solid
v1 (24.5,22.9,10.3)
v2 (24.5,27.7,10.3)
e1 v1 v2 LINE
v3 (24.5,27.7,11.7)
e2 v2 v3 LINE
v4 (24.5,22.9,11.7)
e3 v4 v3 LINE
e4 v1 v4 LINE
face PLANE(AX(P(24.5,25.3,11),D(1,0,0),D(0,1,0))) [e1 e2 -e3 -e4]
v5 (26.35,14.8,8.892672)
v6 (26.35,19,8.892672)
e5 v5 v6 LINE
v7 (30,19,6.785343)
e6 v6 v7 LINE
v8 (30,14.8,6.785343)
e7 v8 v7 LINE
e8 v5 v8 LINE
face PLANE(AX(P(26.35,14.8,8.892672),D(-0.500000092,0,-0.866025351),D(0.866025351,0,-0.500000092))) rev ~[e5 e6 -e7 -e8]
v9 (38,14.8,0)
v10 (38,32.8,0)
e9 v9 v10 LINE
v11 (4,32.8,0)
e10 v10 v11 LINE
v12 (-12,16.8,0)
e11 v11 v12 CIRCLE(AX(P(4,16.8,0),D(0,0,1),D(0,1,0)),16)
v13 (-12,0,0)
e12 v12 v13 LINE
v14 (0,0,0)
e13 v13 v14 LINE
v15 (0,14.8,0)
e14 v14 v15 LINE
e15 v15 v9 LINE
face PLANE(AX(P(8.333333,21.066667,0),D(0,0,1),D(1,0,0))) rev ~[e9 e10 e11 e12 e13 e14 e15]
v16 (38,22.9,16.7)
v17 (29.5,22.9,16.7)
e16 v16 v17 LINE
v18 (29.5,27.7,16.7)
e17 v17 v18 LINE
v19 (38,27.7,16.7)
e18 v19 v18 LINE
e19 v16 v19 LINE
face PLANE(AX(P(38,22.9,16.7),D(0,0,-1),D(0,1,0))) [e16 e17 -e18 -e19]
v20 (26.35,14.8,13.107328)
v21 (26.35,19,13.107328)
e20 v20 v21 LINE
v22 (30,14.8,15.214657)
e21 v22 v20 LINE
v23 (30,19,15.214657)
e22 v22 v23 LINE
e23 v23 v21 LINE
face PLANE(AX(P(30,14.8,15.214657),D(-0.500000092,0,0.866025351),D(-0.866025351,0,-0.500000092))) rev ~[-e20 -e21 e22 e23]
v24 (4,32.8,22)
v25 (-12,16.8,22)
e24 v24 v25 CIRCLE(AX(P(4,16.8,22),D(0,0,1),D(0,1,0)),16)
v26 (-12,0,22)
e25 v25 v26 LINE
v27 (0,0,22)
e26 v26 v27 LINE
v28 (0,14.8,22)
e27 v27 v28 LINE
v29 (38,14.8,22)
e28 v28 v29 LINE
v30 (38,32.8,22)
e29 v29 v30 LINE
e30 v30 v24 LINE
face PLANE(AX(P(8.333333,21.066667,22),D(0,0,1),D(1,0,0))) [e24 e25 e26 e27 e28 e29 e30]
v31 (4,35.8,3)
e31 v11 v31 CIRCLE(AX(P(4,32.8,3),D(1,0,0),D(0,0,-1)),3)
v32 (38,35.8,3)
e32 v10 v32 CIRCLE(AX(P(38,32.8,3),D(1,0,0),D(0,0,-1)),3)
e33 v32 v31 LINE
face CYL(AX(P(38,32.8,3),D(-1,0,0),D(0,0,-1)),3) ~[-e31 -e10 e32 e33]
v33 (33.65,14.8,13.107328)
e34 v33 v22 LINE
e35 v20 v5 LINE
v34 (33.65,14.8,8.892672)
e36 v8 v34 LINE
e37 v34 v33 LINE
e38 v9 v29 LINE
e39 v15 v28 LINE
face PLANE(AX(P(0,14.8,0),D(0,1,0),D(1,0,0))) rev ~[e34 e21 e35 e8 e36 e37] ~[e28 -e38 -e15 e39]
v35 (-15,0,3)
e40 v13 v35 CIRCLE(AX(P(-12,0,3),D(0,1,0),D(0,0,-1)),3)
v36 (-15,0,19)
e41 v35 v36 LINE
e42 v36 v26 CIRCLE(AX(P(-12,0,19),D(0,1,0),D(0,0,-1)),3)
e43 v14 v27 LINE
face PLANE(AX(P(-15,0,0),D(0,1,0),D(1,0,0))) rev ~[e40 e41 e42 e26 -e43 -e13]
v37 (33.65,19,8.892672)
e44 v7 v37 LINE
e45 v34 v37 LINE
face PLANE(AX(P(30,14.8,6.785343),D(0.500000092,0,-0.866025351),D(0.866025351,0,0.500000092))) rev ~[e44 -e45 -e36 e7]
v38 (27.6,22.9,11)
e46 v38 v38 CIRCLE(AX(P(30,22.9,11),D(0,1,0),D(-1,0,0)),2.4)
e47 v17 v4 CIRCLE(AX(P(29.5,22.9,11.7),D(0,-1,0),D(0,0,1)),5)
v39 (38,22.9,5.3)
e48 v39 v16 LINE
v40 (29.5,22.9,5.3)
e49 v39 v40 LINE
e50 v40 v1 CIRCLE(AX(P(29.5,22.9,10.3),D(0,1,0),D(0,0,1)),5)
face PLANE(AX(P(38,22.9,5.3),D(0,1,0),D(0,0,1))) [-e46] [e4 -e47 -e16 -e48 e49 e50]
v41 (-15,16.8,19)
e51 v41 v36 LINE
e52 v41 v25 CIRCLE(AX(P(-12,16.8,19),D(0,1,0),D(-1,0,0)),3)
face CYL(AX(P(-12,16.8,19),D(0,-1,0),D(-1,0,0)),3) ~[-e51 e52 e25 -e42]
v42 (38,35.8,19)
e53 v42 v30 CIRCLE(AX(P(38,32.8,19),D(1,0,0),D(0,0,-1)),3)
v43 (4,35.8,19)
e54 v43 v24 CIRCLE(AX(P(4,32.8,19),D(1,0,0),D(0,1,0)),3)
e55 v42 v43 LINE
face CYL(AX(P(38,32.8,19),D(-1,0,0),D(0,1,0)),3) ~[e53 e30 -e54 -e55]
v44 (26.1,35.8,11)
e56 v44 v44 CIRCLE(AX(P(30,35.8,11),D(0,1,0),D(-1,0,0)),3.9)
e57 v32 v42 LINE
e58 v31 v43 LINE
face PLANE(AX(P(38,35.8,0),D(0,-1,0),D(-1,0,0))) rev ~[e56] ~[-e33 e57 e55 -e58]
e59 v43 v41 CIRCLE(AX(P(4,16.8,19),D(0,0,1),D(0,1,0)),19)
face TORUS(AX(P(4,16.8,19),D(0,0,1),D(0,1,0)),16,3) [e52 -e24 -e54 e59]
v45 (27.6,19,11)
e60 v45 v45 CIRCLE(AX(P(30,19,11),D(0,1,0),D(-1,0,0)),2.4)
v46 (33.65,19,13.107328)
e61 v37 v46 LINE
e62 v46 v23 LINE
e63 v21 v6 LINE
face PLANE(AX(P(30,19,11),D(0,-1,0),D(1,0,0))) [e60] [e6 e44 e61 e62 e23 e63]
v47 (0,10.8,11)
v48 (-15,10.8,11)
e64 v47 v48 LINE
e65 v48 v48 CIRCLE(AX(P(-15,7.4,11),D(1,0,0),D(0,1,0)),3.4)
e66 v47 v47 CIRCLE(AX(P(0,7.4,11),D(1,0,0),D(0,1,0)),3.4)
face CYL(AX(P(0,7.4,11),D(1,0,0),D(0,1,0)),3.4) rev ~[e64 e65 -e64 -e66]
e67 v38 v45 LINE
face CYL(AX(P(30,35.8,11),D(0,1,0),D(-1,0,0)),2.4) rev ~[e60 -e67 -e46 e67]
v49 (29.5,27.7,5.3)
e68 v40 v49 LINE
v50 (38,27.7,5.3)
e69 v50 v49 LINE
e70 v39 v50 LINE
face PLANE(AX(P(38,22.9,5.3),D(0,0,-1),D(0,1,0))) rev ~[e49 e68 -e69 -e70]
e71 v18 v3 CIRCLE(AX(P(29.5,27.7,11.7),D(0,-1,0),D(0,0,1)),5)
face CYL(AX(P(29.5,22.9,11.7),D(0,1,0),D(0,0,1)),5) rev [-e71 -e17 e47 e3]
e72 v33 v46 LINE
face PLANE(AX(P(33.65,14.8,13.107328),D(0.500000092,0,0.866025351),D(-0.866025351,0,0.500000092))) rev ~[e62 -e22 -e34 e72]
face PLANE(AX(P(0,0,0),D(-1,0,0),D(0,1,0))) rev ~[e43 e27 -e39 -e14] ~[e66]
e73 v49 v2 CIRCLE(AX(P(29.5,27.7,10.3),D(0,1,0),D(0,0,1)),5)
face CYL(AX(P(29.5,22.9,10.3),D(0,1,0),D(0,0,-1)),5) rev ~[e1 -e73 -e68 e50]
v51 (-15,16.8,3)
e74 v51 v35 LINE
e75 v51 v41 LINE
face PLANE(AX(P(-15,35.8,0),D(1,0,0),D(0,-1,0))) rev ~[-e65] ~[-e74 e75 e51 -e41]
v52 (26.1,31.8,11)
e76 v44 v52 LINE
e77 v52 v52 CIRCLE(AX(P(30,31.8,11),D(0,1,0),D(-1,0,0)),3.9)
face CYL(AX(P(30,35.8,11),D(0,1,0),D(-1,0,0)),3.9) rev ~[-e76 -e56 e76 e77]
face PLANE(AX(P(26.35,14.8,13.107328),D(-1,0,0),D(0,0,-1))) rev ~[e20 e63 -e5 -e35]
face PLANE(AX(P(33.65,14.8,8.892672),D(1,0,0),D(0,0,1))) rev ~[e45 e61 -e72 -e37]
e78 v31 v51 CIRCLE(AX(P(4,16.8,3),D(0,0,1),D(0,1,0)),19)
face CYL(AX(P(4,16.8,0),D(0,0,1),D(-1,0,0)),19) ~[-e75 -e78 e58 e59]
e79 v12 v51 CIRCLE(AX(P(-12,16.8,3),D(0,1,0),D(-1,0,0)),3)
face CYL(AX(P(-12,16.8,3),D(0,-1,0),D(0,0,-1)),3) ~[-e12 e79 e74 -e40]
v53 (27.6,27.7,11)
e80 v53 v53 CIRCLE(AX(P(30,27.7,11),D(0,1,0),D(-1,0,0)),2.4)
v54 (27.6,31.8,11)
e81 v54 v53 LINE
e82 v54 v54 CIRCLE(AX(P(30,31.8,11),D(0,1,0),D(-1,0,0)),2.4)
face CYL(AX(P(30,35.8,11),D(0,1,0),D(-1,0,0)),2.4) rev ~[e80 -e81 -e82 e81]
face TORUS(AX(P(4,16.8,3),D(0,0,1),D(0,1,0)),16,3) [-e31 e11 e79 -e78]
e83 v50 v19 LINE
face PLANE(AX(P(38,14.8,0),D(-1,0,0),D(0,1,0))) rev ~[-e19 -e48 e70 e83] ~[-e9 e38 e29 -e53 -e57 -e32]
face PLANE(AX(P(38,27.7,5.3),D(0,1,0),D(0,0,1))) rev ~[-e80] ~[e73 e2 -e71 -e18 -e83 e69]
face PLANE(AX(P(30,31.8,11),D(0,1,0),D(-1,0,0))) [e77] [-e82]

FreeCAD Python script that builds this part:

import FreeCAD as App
import Part
import Sketcher
from FreeCAD import Vector
Q = App.Units.Quantity


def edges_at(feature, points):
    """Names of the edges that pass closest to the given points."""
    edges = feature.Shape.Edges
    near = lambda p: min(range(len(edges)), key=lambda i: edges[i].distToShape(Part.Vertex(*p))[0])
    return sorted({f"Edge{near(p) + 1}" for p in points})

doc = App.newDocument("Part")
params = doc.addObject("Spreadsheet::Sheet", "Params")
for row, (alias, value) in enumerate([
    ("sketch1_width", "38 mm"),
    ("sketch1_width2", "53 mm"),
    ("sketch1_height", "21 mm"),
    ("sketch1_height2", "14.8 mm"),
    ("pad1_length", "22 mm"),
    ("sketch2_diameter", "6.8 mm"),
    ("sketch3_width", "4.8 mm"),
    ("sketch3_height", "11.4 mm"),
    ("pocket2_length", "13.5 mm"),
    ("sketch4_diameter", "4.8 mm"),
    ("sketch5_diameter", "7.8 mm"),
    ("pocket4_length", "4 mm"),
    ("pocket5_length", "4.2 mm"),
    ("fillet_radius", "19 mm"),
    ("fillet2_radius", "3 mm"),
    ("fillet3_radius", "5 mm"),
], start=1):
    params.set(f"A{row}", alias)
    params.set(f"B{row}", "=" + value)
    params.setAlias(f"B{row}", alias)

body = doc.addObject("PartDesign::Body", "Body")

# Sketch on XY plane
sketch1 = body.newObject("Sketcher::SketchObject", "Sketch")
sketch1.AttachmentSupport = (doc.getObject("XY_Plane"), [""])
sketch1.MapMode = "FlatFace"
sketch1.addGeometry([
    Part.LineSegment(Vector(0, 0, 0), Vector(0, 15, 0)),  # 0
    Part.LineSegment(Vector(0, 15, 0), Vector(38, 15, 0)),  # 1
    Part.LineSegment(Vector(38, 15, 0), Vector(38, 36, 0)),  # 2
    Part.LineSegment(Vector(38, 36, 0), Vector(-15, 36, 0)),  # 3
    Part.LineSegment(Vector(-15, 36, 0), Vector(-15, 0, 0)),  # 4
    Part.LineSegment(Vector(-15, 0, 0), Vector(0, 0, 0)),  # 5
], False)
sketch1.addConstraint([
    Sketcher.Constraint("Coincident", 0, 2, 1, 1),
    Sketcher.Constraint("Coincident", 1, 2, 2, 1),
    Sketcher.Constraint("Coincident", 2, 2, 3, 1),
    Sketcher.Constraint("Coincident", 3, 2, 4, 1),
    Sketcher.Constraint("Coincident", 4, 2, 5, 1),
    Sketcher.Constraint("Coincident", 5, 2, 0, 1),
    Sketcher.Constraint("Vertical", 0),
    Sketcher.Constraint("Horizontal", 1),
    Sketcher.Constraint("Vertical", 2),
    Sketcher.Constraint("Horizontal", 3),
    Sketcher.Constraint("Vertical", 4),
    Sketcher.Constraint("Horizontal", 5),
    Sketcher.Constraint("Coincident", 5, 2, -1, 1),
    Sketcher.Constraint("DistanceX", 1, 1, 1, 2, 38.0),
    Sketcher.Constraint("DistanceX", 3, 2, 3, 1, 53.0),
    Sketcher.Constraint("DistanceY", 2, 1, 2, 2, 21.0),
    Sketcher.Constraint("DistanceY", 0, 1, 0, 2, 14.8),
])
sketch1.setExpression("Constraints[13]", "Params.sketch1_width")
sketch1.setExpression("Constraints[14]", "Params.sketch1_width2")
sketch1.setExpression("Constraints[15]", "Params.sketch1_height")
sketch1.setExpression("Constraints[16]", "Params.sketch1_height2")
pad1 = body.newObject("PartDesign::Pad", "Pad")
pad1.Profile = sketch1
pad1.setExpression("Length", "Params.pad1_length")

# Sketch on YZ plane
sketch2 = body.newObject("Sketcher::SketchObject", "Sketch001")
sketch2.AttachmentSupport = (doc.getObject("YZ_Plane"), [""])
sketch2.MapMode = "FlatFace"
sketch2.addGeometry(Part.Circle(Vector(7.4, 11, 0), Vector(0, 0, 1), 3.4), False)
sketch2.addConstraint([
    Sketcher.Constraint("Diameter", 0, 6.8),
    Sketcher.Constraint("DistanceY", -1, 1, 0, 3, 11.0),
    Sketcher.Constraint("DistanceX", -1, 1, 0, 3, 7.4),
])
sketch2.setExpression("Constraints[0]", "Params.sketch2_diameter")
pocket1 = body.newObject("PartDesign::Pocket", "Pocket")
pocket1.Profile = sketch2
pocket1.Type = "ThroughAll"

# Sketch on YZ plane
sketch3 = body.newObject("Sketcher::SketchObject", "Sketch002")
sketch3.AttachmentSupport = (doc.getObject("YZ_Plane"), [""])
sketch3.MapMode = "FlatFace"
sketch3.AttachmentOffset = App.Placement(Vector(0, 0, 38), App.Rotation())
sketch3.addGeometry([
    Part.LineSegment(Vector(22.9, 16.7, 0), Vector(22.9, 5.3, 0)),
    Part.LineSegment(Vector(22.9, 5.3, 0), Vector(27.7, 5.3, 0)),
    Part.LineSegment(Vector(27.7, 5.3, 0), Vector(27.7, 16.7, 0)),
    Part.LineSegment(Vector(27.7, 16.7, 0), Vector(22.9, 16.7, 0)),
], False)
sketch3.addConstraint([
    Sketcher.Constraint("Coincident", 0, 2, 1, 1),
    Sketcher.Constraint("Coincident", 1, 2, 2, 1),
    Sketcher.Constraint("Coincident", 2, 2, 3, 1),
    Sketcher.Constraint("Coincident", 3, 2, 0, 1),
    Sketcher.Constraint("Vertical", 0),
    Sketcher.Constraint("Horizontal", 1),
    Sketcher.Constraint("Vertical", 2),
    Sketcher.Constraint("Horizontal", 3),
    Sketcher.Constraint("DistanceX", 1, 1, 1, 2, 4.8),
    Sketcher.Constraint("DistanceY", 0, 2, 0, 1, 11.4),
    Sketcher.Constraint("DistanceX", -1, 1, 0, 2, 22.9),
    Sketcher.Constraint("DistanceY", -1, 1, 0, 2, 5.3),
])
sketch3.setExpression("Constraints[8]", "Params.sketch3_width")
sketch3.setExpression("Constraints[9]", "Params.sketch3_height")
pocket2 = body.newObject("PartDesign::Pocket", "Pocket001")
pocket2.Profile = sketch3
pocket2.setExpression("Length", "Params.pocket2_length")

# Sketch on XZ plane
sketch4 = body.newObject("Sketcher::SketchObject", "Sketch003")
sketch4.AttachmentSupport = (doc.getObject("XZ_Plane"), [""])
sketch4.MapMode = "FlatFace"
sketch4.AttachmentOffset = App.Placement(Vector(0, 0, -35.8), App.Rotation())
sketch4.addGeometry(Part.Circle(Vector(30, 11, 0), Vector(0, 0, 1), 2.4), False)
sketch4.addConstraint([
    Sketcher.Constraint("Diameter", 0, 4.8),
    Sketcher.Constraint("DistanceX", -1, 1, 0, 3, 30.0),
    Sketcher.Constraint("DistanceY", -1, 1, 0, 3, 11.0),
])
sketch4.setExpression("Constraints[0]", "Params.sketch4_diameter")
pocket3 = body.newObject("PartDesign::Pocket", "Pocket002")
pocket3.Profile = sketch4
pocket3.Type = "ThroughAll"
pocket3.Reversed = True

# Sketch on XZ plane
sketch5 = body.newObject("Sketcher::SketchObject", "Sketch004")
sketch5.AttachmentSupport = (doc.getObject("XZ_Plane"), [""])
sketch5.MapMode = "FlatFace"
sketch5.AttachmentOffset = App.Placement(Vector(0, 0, -35.8), App.Rotation())
sketch5.addGeometry(Part.Circle(Vector(30, 11, 0), Vector(0, 0, 1), 3.9), False)
sketch5.addConstraint([
    Sketcher.Constraint("Diameter", 0, 7.8),
    Sketcher.Constraint("DistanceX", -1, 1, 0, 3, 30.0),
    Sketcher.Constraint("DistanceY", -1, 1, 0, 3, 11.0),
])
sketch5.setExpression("Constraints[0]", "Params.sketch5_diameter")
pocket4 = body.newObject("PartDesign::Pocket", "Pocket003")
pocket4.Profile = sketch5
pocket4.setExpression("Length", "Params.pocket4_length")
pocket4.Reversed = True

# Sketch on XZ plane
sketch6 = body.newObject("Sketcher::SketchObject", "Sketch005")
sketch6.AttachmentSupport = (doc.getObject("XZ_Plane"), [""])
sketch6.MapMode = "FlatFace"
sketch6.AttachmentOffset = App.Placement(Vector(0, 0, -14.8), App.Rotation())
sketch6.addGeometry([
    Part.LineSegment(Vector(30, 6.8, 0), Vector(33.6, 8.9, 0)),  # 0
    Part.LineSegment(Vector(33.6, 8.9, 0), Vector(33.6, 13.1, 0)),  # 1
    Part.LineSegment(Vector(33.6, 13.1, 0), Vector(30, 15.2, 0)),  # 2
    Part.LineSegment(Vector(30, 15.2, 0), Vector(26.4, 13.1, 0)),  # 3
    Part.LineSegment(Vector(26.4, 13.1, 0), Vector(26.4, 8.9, 0)),  # 4
    Part.LineSegment(Vector(26.4, 8.9, 0), Vector(30, 6.8, 0)),  # 5
], False)
sketch6.addConstraint([
    Sketcher.Constraint("Coincident", 0, 2, 1, 1),
    Sketcher.Constraint("Coincident", 1, 2, 2, 1),
    Sketcher.Constraint("Coincident", 2, 2, 3, 1),
    Sketcher.Constraint("Coincident", 3, 2, 4, 1),
    Sketcher.Constraint("Coincident", 4, 2, 5, 1),
    Sketcher.Constraint("Coincident", 5, 2, 0, 1),
    Sketcher.Constraint("Vertical", 1),
    Sketcher.Constraint("Vertical", 4),
    Sketcher.Constraint("Parallel", 0, 3),
    Sketcher.Constraint("Parallel", 2, 5),
    Sketcher.Constraint("Horizontal", 1, 2, 3, 2),
    Sketcher.Constraint("Horizontal", 0, 2, 4, 2),
    Sketcher.Constraint("Vertical", 2, 2, 5, 2),
    Sketcher.Constraint("Angle", 0, Q("30.000006 deg")),
    Sketcher.Constraint("DistanceX", -1, 1, 2, 2, 30.0),
    Sketcher.Constraint("DistanceX", 3, 2, 1, 2, 7.3),
    Sketcher.Constraint("DistanceY", 1, 1, 1, 2, 4.214656),
    Sketcher.Constraint("DistanceY", -1, 1, 0, 2, 8.892672),
])
pocket5 = body.newObject("PartDesign::Pocket", "Pocket004")
pocket5.Profile = sketch6
pocket5.setExpression("Length", "Params.pocket5_length")
doc.recompute()

fillet = body.newObject("PartDesign::Fillet", "Fillet")
fillet.Base = (pocket5, edges_at(pocket5, [(-15, 35.8, 11)]))
fillet.setExpression("Radius", "Params.fillet_radius")
doc.recompute()

fillet2 = body.newObject("PartDesign::Fillet", "Fillet001")
fillet2.Base = (fillet, edges_at(fillet, [(-15, 8.4, 22), (-15, 8.4, 0)]))
fillet2.setExpression("Radius", "Params.fillet2_radius")
doc.recompute()

fillet3 = body.newObject("PartDesign::Fillet", "Fillet002")
fillet3.Base = (fillet2, edges_at(fillet2, [(24.5, 25.3, 16.7), (24.5, 25.3, 5.3)]))
fillet3.setExpression("Radius", "Params.fillet3_radius")

doc.recompute()
